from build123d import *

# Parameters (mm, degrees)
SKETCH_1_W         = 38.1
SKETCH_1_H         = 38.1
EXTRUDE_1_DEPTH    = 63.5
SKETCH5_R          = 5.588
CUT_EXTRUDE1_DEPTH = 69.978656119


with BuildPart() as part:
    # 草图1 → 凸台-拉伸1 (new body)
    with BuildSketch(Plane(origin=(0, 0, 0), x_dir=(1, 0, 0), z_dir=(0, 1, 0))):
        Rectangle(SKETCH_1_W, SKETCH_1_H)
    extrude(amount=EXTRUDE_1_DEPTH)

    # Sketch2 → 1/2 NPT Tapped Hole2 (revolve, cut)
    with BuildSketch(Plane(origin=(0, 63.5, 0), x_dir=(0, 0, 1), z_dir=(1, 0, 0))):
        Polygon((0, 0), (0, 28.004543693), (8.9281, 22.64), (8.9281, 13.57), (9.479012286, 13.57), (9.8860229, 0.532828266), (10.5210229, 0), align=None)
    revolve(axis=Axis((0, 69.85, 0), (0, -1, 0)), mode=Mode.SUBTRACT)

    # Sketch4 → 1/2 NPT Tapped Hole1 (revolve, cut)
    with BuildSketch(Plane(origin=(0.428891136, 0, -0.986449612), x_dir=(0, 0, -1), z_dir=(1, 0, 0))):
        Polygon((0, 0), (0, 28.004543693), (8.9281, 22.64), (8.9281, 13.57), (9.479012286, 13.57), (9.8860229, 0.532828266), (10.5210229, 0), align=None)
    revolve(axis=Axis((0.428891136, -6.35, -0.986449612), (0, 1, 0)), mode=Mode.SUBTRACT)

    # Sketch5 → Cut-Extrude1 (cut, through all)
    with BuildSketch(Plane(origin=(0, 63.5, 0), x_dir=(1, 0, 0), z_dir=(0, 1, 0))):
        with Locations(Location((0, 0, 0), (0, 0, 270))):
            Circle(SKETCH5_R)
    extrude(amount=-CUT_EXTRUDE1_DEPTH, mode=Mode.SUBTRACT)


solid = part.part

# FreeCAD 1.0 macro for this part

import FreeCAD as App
import Part
import Sketcher

V = App.Vector
Q = App.Units.Quantity


def add_polygon(sketch, points):
    """Adds a closed chain of lines whose ends are joined by coincident constraints."""
    first, n = sketch.GeometryCount, len(points)
    for a, b in zip(points, points[1:] + points[:1]):
        sketch.addGeometry(Part.LineSegment(App.Vector(*a, 0), App.Vector(*b, 0)), False)
    for i in range(n):
        sketch.addConstraint(Sketcher.Constraint("Coincident", first + i, 2, first + (i + 1) % n, 1))

doc = App.newDocument("Part")
body = doc.addObject("PartDesign::Body", "Body")

sketch1 = doc.addObject("Sketcher::SketchObject", "Sketch")
body.addObject(sketch1)
sketch1.AttachmentSupport = (doc.XZ_Plane, [""])
sketch1.MapMode = "FlatFace"
add_polygon(sketch1, [(-19, -19), (-19, 19), (19, 19), (19, -19)])
sketch1.addConstraint([
    Sketcher.Constraint("Vertical", 0),
    Sketcher.Constraint("Horizontal", 1),
    Sketcher.Constraint("Vertical", 2),
    Sketcher.Constraint("Horizontal", 3),
    Sketcher.Constraint("Symmetric", 0, 2, 2, 2, -1, 1),
    Sketcher.Constraint("Equal", 3, 0),
    Sketcher.Constraint("DistanceX", 1, 1, 1, 2, Q("1.5 in")),
])
pad1 = doc.addObject("PartDesign::Pad", "Pad")
body.addObject(pad1)
pad1.Profile = sketch1
pad1.Length = Q("2.5 in")
pad1.Reversed = True

sketch2 = doc.addObject("Sketcher::SketchObject", "Sketch001")
body.addObject(sketch2)
sketch2.AttachmentSupport = (doc.YZ_Plane, [""])
sketch2.MapMode = "FlatFace"
add_polygon(sketch2, [(35.5, 0), (63.5, 0), (63.5, 10.5), (63, 9.9), (49.9, 9.5), (49.9, 8.9), (40.9, 8.9)])
sketch2.addConstraint([
    Sketcher.Constraint("Horizontal", 0),
    Sketcher.Constraint("Vertical", 1),
    Sketcher.Constraint("Vertical", 4),
    Sketcher.Constraint("Horizontal", 5),
    Sketcher.Constraint("PointOnObject", 0, 2, -1),
    Sketcher.Constraint("Angle", 2, Q("-130 deg")),
    Sketcher.Constraint("Angle", 6, Q("-121 deg")),
    Sketcher.Constraint("DistanceX", -1, 1, 0, 2, Q("2.5 in")),
    Sketcher.Constraint("DistanceY", 2, 2, 1, 2, Q("0.025 in")),
    Sketcher.Constraint("DistanceX", 5, 2, 5, 1, 9.07),
    Sketcher.Constraint("DistanceY", -1, 1, 4, 2, Q("0.3515 in")),
    Sketcher.Constraint("DistanceX", -1, 1, 3, 2, 49.93),
    Sketcher.Constraint("DistanceY", 1, 1, 1, 2, 10.521023),
    Sketcher.Constraint("DistanceY", 4, 2, 4, 1, 0.550912),
])
groove = doc.addObject("PartDesign::Groove", "Groove")
body.addObject(groove)
groove.Profile = sketch2
groove.ReferenceAxis = (sketch2, ["H_Axis"])
groove.Angle = 360

sketch3 = doc.addObject("Sketcher::SketchObject", "Sketch002")
body.addObject(sketch3)
sketch3.AttachmentSupport = (doc.YZ_Plane, [""])
sketch3.MapMode = "FlatFace"
sketch3.AttachmentOffset = App.Placement(V(0, 0, 0.428891), App.Rotation())
add_polygon(sketch3, [(28, -1), (0, -1), (0, -11.5), (0.5, -10.9), (13.6, -10.5), (13.6, -9.9), (22.6, -9.9)])
sketch3.addGeometry(Part.LineSegment(V(0, -1, 0), V(28, -1, 0)), True)
sketch3.addConstraint([
    Sketcher.Constraint("Horizontal", 0),
    Sketcher.Constraint("Vertical", 1),
    Sketcher.Constraint("Vertical", 4),
    Sketcher.Constraint("Horizontal", 5),
    Sketcher.Constraint("Horizontal", 7),
    Sketcher.Constraint("Coincident", 7, 1, 0, 2),
    Sketcher.Constraint("PointOnObject", 0, 2, -2),
    Sketcher.Constraint("Equal", 0, 7),
    Sketcher.Constraint("Angle", 2, Q("50 deg")),
    Sketcher.Constraint("Angle", 6, Q("59 deg")),
    Sketcher.Constraint("DistanceY", 1, 2, 2, 2, Q("0.025 in")),
    Sketcher.Constraint("DistanceX", 5, 1, 5, 2, 9.07),
    Sketcher.Constraint("DistanceY", 4, 2, 0, 2, Q("0.3515 in")),
    Sketcher.Constraint("DistanceX", -1, 1, 3, 2, 13.57),
    Sketcher.Constraint("DistanceY", 1, 2, 1, 1, 10.521023),
    Sketcher.Constraint("DistanceY", 4, 1, 4, 2, 0.550912),
    Sketcher.Constraint("DistanceY", 0, 2, -1, 1, 0.98645),
])
groove2 = doc.addObject("PartDesign::Groove", "Groove001")
body.addObject(groove2)
groove2.Profile = sketch3
groove2.ReferenceAxis = (sketch3, ["Axis0"])
groove2.Angle = 360

sketch4 = doc.addObject("Sketcher::SketchObject", "Sketch003")
body.addObject(sketch4)
sketch4.AttachmentSupport = (doc.XZ_Plane, [""])
sketch4.MapMode = "FlatFace"
sketch4.AttachmentOffset = App.Placement(V(0, 0, -2.5 * 25.4), App.Rotation())
sketch4.addGeometry(Part.Circle(V(0, 0, 0), V(0, 0, 1), 6), False)
sketch4.addConstraint([
    Sketcher.Constraint("Coincident", 0, 3, -1, 1),
    Sketcher.Constraint("Diameter", 0, Q("0.44 in")),
])
pocket1 = doc.addObject("PartDesign::Pocket", "Pocket")
body.addObject(pocket1)
pocket1.Profile = sketch4
pocket1.Type = "ThroughAll"
pocket1.Reversed = True

doc.recompute()
